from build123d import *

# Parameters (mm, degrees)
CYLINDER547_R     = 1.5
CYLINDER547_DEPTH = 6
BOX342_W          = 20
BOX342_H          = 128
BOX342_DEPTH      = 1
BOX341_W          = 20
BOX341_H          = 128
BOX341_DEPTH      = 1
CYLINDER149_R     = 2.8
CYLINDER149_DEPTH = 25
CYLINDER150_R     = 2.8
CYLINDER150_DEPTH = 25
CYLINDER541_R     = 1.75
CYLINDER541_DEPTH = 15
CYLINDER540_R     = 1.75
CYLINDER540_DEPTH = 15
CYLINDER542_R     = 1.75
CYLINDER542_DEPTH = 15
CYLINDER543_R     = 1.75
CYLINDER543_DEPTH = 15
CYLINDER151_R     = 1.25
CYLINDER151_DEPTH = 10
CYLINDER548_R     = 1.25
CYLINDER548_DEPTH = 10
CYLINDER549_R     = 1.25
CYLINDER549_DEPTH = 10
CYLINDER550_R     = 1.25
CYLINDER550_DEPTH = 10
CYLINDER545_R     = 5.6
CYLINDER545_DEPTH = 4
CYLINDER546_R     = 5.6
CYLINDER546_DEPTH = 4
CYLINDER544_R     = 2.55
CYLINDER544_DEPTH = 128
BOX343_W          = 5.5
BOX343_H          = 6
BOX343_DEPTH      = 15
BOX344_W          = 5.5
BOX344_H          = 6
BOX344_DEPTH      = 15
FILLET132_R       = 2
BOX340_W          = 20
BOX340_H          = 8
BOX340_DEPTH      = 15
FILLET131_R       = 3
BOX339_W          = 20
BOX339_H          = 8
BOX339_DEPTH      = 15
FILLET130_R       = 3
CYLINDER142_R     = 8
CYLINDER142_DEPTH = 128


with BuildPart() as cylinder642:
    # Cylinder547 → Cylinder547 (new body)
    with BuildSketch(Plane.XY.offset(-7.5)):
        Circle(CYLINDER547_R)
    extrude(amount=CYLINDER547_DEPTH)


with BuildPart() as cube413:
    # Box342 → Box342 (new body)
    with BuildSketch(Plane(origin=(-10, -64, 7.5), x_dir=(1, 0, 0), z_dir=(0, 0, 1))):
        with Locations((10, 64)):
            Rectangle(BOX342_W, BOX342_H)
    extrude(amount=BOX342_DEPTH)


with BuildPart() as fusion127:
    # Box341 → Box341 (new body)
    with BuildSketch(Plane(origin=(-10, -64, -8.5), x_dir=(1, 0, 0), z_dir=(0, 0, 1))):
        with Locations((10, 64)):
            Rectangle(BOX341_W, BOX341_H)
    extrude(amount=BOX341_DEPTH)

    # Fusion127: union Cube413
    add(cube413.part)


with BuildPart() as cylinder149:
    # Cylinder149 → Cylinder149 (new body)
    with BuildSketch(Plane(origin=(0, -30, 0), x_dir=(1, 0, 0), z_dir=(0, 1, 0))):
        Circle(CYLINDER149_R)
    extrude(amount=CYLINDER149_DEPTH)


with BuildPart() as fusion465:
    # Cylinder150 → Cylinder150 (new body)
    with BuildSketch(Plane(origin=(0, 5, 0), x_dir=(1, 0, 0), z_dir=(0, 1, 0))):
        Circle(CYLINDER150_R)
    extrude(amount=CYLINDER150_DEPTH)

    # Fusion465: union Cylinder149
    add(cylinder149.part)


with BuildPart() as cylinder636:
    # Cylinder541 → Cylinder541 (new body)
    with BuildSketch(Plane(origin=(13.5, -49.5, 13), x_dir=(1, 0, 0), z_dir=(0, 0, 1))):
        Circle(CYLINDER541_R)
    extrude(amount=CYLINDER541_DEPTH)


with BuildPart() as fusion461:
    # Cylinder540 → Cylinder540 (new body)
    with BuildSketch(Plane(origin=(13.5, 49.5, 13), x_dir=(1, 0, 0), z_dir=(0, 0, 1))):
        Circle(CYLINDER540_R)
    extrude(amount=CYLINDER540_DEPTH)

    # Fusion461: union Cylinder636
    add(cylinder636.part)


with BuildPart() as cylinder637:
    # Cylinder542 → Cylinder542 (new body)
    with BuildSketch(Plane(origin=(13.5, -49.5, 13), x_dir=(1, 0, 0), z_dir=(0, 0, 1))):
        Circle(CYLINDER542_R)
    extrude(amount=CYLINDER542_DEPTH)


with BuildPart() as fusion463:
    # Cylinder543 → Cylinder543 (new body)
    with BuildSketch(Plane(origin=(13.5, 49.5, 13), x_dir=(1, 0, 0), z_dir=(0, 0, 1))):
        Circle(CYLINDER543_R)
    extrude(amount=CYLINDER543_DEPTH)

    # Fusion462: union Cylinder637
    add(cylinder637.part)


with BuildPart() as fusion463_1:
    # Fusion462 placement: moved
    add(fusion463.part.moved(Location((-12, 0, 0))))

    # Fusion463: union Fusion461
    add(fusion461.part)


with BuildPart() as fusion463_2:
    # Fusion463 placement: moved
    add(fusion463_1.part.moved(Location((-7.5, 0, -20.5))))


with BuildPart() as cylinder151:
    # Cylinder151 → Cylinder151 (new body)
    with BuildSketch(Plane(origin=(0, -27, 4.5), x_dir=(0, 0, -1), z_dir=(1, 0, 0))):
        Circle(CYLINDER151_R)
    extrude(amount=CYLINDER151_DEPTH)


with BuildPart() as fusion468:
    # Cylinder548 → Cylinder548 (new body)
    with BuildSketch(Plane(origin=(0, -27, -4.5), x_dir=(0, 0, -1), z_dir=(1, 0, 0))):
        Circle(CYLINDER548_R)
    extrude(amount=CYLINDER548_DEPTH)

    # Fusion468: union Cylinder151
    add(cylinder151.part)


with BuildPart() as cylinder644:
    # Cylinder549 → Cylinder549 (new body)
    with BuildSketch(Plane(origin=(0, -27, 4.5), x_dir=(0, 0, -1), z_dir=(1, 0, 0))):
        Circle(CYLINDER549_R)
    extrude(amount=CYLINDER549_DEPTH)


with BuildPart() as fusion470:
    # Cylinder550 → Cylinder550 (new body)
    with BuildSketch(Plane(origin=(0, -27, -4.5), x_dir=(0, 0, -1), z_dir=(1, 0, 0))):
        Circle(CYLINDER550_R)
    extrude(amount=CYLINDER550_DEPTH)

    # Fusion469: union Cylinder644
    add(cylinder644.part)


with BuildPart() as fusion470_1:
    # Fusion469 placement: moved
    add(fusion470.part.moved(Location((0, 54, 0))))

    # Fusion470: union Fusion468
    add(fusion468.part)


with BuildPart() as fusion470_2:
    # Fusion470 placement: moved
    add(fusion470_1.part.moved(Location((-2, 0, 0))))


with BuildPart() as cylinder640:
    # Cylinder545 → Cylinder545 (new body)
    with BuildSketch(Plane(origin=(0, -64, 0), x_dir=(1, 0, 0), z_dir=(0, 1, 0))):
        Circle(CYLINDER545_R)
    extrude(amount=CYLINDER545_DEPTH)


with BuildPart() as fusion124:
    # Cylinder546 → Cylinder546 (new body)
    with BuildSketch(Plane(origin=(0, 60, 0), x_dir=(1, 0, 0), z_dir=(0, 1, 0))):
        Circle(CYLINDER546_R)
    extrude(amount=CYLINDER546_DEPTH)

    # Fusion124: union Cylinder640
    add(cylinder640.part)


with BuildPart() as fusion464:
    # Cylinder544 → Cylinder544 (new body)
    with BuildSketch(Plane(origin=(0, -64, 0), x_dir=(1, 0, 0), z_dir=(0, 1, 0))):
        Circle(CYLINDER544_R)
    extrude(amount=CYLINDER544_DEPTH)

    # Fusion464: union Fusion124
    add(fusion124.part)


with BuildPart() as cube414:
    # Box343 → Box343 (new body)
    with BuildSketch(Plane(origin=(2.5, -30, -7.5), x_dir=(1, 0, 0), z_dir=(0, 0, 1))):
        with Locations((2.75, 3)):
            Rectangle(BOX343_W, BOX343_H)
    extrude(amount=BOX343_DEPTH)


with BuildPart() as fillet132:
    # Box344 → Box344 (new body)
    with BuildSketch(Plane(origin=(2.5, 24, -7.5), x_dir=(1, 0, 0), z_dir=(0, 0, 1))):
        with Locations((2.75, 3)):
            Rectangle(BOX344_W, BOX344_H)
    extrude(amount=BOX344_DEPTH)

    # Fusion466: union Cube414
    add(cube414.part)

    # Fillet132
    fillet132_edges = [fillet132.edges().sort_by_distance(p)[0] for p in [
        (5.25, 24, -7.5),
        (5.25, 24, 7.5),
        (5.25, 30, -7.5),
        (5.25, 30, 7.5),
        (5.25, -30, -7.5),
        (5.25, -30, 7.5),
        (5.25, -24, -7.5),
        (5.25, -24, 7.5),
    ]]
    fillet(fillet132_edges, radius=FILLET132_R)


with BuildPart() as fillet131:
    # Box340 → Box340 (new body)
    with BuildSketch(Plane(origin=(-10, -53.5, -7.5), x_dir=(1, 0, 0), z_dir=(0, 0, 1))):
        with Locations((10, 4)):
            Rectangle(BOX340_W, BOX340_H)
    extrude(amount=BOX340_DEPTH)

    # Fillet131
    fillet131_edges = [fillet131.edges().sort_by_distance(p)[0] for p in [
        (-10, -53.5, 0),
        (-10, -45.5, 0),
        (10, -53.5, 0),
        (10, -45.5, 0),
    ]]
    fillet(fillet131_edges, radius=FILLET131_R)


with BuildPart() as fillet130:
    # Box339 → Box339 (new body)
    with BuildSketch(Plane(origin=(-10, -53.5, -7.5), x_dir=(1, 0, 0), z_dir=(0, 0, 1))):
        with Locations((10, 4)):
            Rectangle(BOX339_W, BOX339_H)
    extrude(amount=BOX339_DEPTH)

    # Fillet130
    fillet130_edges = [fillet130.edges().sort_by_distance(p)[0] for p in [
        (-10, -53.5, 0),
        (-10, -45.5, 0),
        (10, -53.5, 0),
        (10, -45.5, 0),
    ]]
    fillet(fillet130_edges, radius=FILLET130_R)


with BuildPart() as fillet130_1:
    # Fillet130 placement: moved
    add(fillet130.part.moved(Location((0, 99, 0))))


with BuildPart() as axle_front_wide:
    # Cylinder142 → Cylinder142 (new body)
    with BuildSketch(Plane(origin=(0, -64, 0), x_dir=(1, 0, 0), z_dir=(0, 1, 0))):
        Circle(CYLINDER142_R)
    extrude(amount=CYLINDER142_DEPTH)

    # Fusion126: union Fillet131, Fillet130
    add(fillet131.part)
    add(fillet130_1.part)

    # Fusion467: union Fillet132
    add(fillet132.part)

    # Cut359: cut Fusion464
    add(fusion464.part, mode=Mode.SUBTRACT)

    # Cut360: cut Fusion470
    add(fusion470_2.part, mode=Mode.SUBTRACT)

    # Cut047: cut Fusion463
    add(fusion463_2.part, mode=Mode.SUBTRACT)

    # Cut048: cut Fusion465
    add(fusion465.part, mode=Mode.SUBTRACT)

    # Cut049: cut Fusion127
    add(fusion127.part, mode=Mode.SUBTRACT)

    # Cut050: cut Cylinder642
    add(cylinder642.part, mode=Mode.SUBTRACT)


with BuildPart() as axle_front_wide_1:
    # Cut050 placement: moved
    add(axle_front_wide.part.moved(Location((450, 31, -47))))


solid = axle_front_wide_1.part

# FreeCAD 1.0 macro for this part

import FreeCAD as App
import Part
import Sketcher
Q = App.Units.Quantity


def edges_at(feature, points):
    """Names of the edges that pass closest to the given points."""
    edges = feature.Shape.Edges
    near = lambda p: min(range(len(edges)), key=lambda i: edges[i].distToShape(Part.Vertex(*p))[0])
    return sorted({f"Edge{near(p) + 1}" for p in points})


def add_polygon(sketch, points):
    """Adds a closed chain of lines whose ends are joined by coincident constraints."""
    first, n = sketch.GeometryCount, len(points)
    for a, b in zip(points, points[1:] + points[:1]):
        sketch.addGeometry(Part.LineSegment(App.Vector(*a, 0), App.Vector(*b, 0)), False)
    for i in range(n):
        sketch.addConstraint(Sketcher.Constraint("Coincident", first + i, 2, first + (i + 1) % n, 1))

doc = App.newDocument("Part")
body = doc.addObject("PartDesign::Body", "Body")

sketch1 = body.newObject("Sketcher::SketchObject", "Sketch")
sketch1.AttachmentSupport = (doc.getObject("XY_Plane"), [""])
sketch1.MapMode = "FlatFace"
sketch1.AttachmentOffset = App.Placement(App.Vector(0, 0, -7.5), App.Rotation())
sketch1.addGeometry(Part.Circle(App.Vector(0, 0, 0), App.Vector(0, 0, 1), 1.5), False)
sketch1.addConstraint([
    Sketcher.Constraint("Coincident", 0, 3, -1, 1),
    Sketcher.Constraint("Diameter", 0, Q("3 mm")),
])
pad1 = body.newObject("PartDesign::Pad", "Pad")
pad1.Profile = sketch1
pad1.Length = 6
body2 = doc.addObject("PartDesign::Body", "Body001")

sketch2 = body2.newObject("Sketcher::SketchObject", "Sketch001")
sketch2.AttachmentSupport = (doc.getObject("XY_Plane001"), [""])
sketch2.MapMode = "FlatFace"
sketch2.AttachmentOffset = App.Placement(App.Vector(0, 0, 7.5), App.Rotation())
add_polygon(sketch2, [(-10, 64), (-10, -64), (10, -64), (10, 64)])
sketch2.addConstraint([
    Sketcher.Constraint("Vertical", 0),
    Sketcher.Constraint("Horizontal", 1),
    Sketcher.Constraint("Vertical", 2),
    Sketcher.Constraint("Horizontal", 3),
    Sketcher.Constraint("Symmetric", 0, 2, 2, 2, -1, 1),
    Sketcher.Constraint("DistanceX", 1, 1, 1, 2, Q("20 mm")),
    Sketcher.Constraint("DistanceY", 0, 2, 0, 1, Q("128 mm")),
])
pad2 = body2.newObject("PartDesign::Pad", "Pad001")
pad2.Profile = sketch2
pad2.Length = 1
body3 = doc.addObject("PartDesign::Body", "Body002")
body3.AllowCompound = True

sketch3 = body3.newObject("Sketcher::SketchObject", "Sketch002")
sketch3.AttachmentSupport = (doc.getObject("XY_Plane002"), [""])
sketch3.MapMode = "FlatFace"
sketch3.AttachmentOffset = App.Placement(App.Vector(0, 0, -8.5), App.Rotation())
add_polygon(sketch3, [(-10, 64), (-10, -64), (10, -64), (10, 64)])
sketch3.addConstraint([
    Sketcher.Constraint("Vertical", 0),
    Sketcher.Constraint("Horizontal", 1),
    Sketcher.Constraint("Vertical", 2),
    Sketcher.Constraint("Horizontal", 3),
    Sketcher.Constraint("Symmetric", 0, 2, 2, 2, -1, 1),
    Sketcher.Constraint("DistanceX", 1, 1, 1, 2, Q("20 mm")),
    Sketcher.Constraint("DistanceY", 0, 2, 0, 1, Q("128 mm")),
])
pad3 = body3.newObject("PartDesign::Pad", "Pad002")
pad3.Profile = sketch3
pad3.Length = 1
doc.recompute()

boolean = body3.newObject("PartDesign::Boolean", "Boolean")
boolean.Type = "Fuse"
boolean.addObjects([body2])
body4 = doc.addObject("PartDesign::Body", "Body003")

sketch4 = body4.newObject("Sketcher::SketchObject", "Sketch003")
sketch4.AttachmentSupport = (doc.getObject("XZ_Plane003"), [""])
sketch4.MapMode = "FlatFace"
sketch4.AttachmentOffset = App.Placement(App.Vector(0, 0, 30), App.Rotation())
sketch4.addGeometry(Part.Circle(App.Vector(0, 0, 0), App.Vector(0, 0, 1), 2.8), False)
sketch4.addConstraint([
    Sketcher.Constraint("Coincident", 0, 3, -1, 1),
    Sketcher.Constraint("Diameter", 0, Q("5.6 mm")),
])
pad4 = body4.newObject("PartDesign::Pad", "Pad003")
pad4.Profile = sketch4
pad4.Length = 25
pad4.Reversed = True
body5 = doc.addObject("PartDesign::Body", "Body004")
body5.AllowCompound = True

sketch5 = body5.newObject("Sketcher::SketchObject", "Sketch004")
sketch5.AttachmentSupport = (doc.getObject("XZ_Plane004"), [""])
sketch5.MapMode = "FlatFace"
sketch5.AttachmentOffset = App.Placement(App.Vector(0, 0, -5), App.Rotation())
sketch5.addGeometry(Part.Circle(App.Vector(0, 0, 0), App.Vector(0, 0, 1), 2.8), False)
sketch5.addConstraint([
    Sketcher.Constraint("Coincident", 0, 3, -1, 1),
    Sketcher.Constraint("Diameter", 0, Q("5.6 mm")),
])
pad5 = body5.newObject("PartDesign::Pad", "Pad004")
pad5.Profile = sketch5
pad5.Length = 25
pad5.Reversed = True
doc.recompute()

boolean2 = body5.newObject("PartDesign::Boolean", "Boolean001")
boolean2.Type = "Fuse"
boolean2.addObjects([body4])
body6 = doc.addObject("PartDesign::Body", "Body005")

sketch6 = body6.newObject("Sketcher::SketchObject", "Sketch005")
sketch6.AttachmentSupport = (doc.getObject("XY_Plane005"), [""])
sketch6.MapMode = "FlatFace"
sketch6.AttachmentOffset = App.Placement(App.Vector(0, 0, 13), App.Rotation())
sketch6.addGeometry(Part.Circle(App.Vector(13.5, -49.5, 0), App.Vector(0, 0, 1), 1.8), False)
sketch6.addConstraint([
    Sketcher.Constraint("Diameter", 0, Q("3.5 mm")),
    Sketcher.Constraint("DistanceX", -1, 1, 0, 3, Q("13.5 mm")),
    Sketcher.Constraint("DistanceY", 0, 3, -1, 1, Q("49.5 mm")),
])
pad6 = body6.newObject("PartDesign::Pad", "Pad005")
pad6.Profile = sketch6
pad6.Length = 15
body7 = doc.addObject("PartDesign::Body", "Body006")
body7.AllowCompound = True

sketch7 = body7.newObject("Sketcher::SketchObject", "Sketch006")
sketch7.AttachmentSupport = (doc.getObject("XY_Plane006"), [""])
sketch7.MapMode = "FlatFace"
sketch7.AttachmentOffset = App.Placement(App.Vector(0, 0, 13), App.Rotation())
sketch7.addGeometry(Part.Circle(App.Vector(13.5, 49.5, 0), App.Vector(0, 0, 1), 1.8), False)
sketch7.addConstraint([
    Sketcher.Constraint("Diameter", 0, Q("3.5 mm")),
    Sketcher.Constraint("DistanceX", -1, 1, 0, 3, Q("13.5 mm")),
    Sketcher.Constraint("DistanceY", -1, 1, 0, 3, Q("49.5 mm")),
])
pad7 = body7.newObject("PartDesign::Pad", "Pad006")
pad7.Profile = sketch7
pad7.Length = 15
doc.recompute()

boolean3 = body7.newObject("PartDesign::Boolean", "Boolean002")
boolean3.Type = "Fuse"
boolean3.addObjects([body6])
body8 = doc.addObject("PartDesign::Body", "Body007")

sketch8 = body8.newObject("Sketcher::SketchObject", "Sketch007")
sketch8.AttachmentSupport = (doc.getObject("XY_Plane007"), [""])
sketch8.MapMode = "FlatFace"
sketch8.AttachmentOffset = App.Placement(App.Vector(0, 0, 13), App.Rotation())
sketch8.addGeometry(Part.Circle(App.Vector(13.5, -49.5, 0), App.Vector(0, 0, 1), 1.8), False)
sketch8.addConstraint([
    Sketcher.Constraint("Diameter", 0, Q("3.5 mm")),
    Sketcher.Constraint("DistanceX", -1, 1, 0, 3, Q("13.5 mm")),
    Sketcher.Constraint("DistanceY", 0, 3, -1, 1, Q("49.5 mm")),
])
pad8 = body8.newObject("PartDesign::Pad", "Pad007")
pad8.Profile = sketch8
pad8.Length = 15
body9 = doc.addObject("PartDesign::Body", "Body008")
body9.AllowCompound = True

sketch9 = body9.newObject("Sketcher::SketchObject", "Sketch008")
sketch9.AttachmentSupport = (doc.getObject("XY_Plane008"), [""])
sketch9.MapMode = "FlatFace"
sketch9.AttachmentOffset = App.Placement(App.Vector(0, 0, 13), App.Rotation())
sketch9.addGeometry(Part.Circle(App.Vector(13.5, 49.5, 0), App.Vector(0, 0, 1), 1.8), False)
sketch9.addConstraint([
    Sketcher.Constraint("Diameter", 0, Q("3.5 mm")),
    Sketcher.Constraint("DistanceX", -1, 1, 0, 3, Q("13.5 mm")),
    Sketcher.Constraint("DistanceY", -1, 1, 0, 3, Q("49.5 mm")),
])
pad9 = body9.newObject("PartDesign::Pad", "Pad008")
pad9.Profile = sketch9
pad9.Length = 15
doc.recompute()

boolean4 = body9.newObject("PartDesign::Boolean", "Boolean003")
boolean4.Type = "Fuse"
boolean4.addObjects([body8])
body10 = doc.addObject("PartDesign::Body", "Body009")
body10.AllowCompound = True
doc.recompute()

body9.Placement = App.Placement(App.Vector(-12, 0, 0), App.Rotation(App.Vector(0, 0, 1), 0))
boolean5 = body10.newObject("PartDesign::Boolean", "Boolean004")
boolean5.Type = "Fuse"
boolean5.addObjects([body9])
doc.recompute()

boolean6 = body10.newObject("PartDesign::Boolean", "Boolean005")
boolean6.Type = "Fuse"
boolean6.addObjects([body7])
body11 = doc.addObject("PartDesign::Body", "Body010")
body11.AllowCompound = True
doc.recompute()

body10.Placement = App.Placement(App.Vector(-7.5, 0, -20.5), App.Rotation(App.Vector(0, 0, 1), 0))
boolean7 = body11.newObject("PartDesign::Boolean", "Boolean006")
boolean7.Type = "Fuse"
boolean7.addObjects([body10])
body12 = doc.addObject("PartDesign::Body", "Body011")

sketch10 = body12.newObject("Sketcher::SketchObject", "Sketch009")
sketch10.AttachmentSupport = (doc.getObject("YZ_Plane011"), [""])
sketch10.MapMode = "FlatFace"
sketch10.addGeometry(Part.Circle(App.Vector(-27, 4.5, 0), App.Vector(0, 0, 1), 1.2), False)
sketch10.addConstraint([
    Sketcher.Constraint("Diameter", 0, Q("2.5 mm")),
    Sketcher.Constraint("DistanceX", 0, 3, -1, 1, Q("27 mm")),
    Sketcher.Constraint("DistanceY", -1, 1, 0, 3, Q("4.5 mm")),
])
pad10 = body12.newObject("PartDesign::Pad", "Pad009")
pad10.Profile = sketch10
pad10.Length = 10
body13 = doc.addObject("PartDesign::Body", "Body012")
body13.AllowCompound = True

sketch11 = body13.newObject("Sketcher::SketchObject", "Sketch010")
sketch11.AttachmentSupport = (doc.getObject("YZ_Plane012"), [""])
sketch11.MapMode = "FlatFace"
sketch11.addGeometry(Part.Circle(App.Vector(-27, -4.5, 0), App.Vector(0, 0, 1), 1.2), False)
sketch11.addConstraint([
    Sketcher.Constraint("Diameter", 0, Q("2.5 mm")),
    Sketcher.Constraint("DistanceX", 0, 3, -1, 1, Q("27 mm")),
    Sketcher.Constraint("DistanceY", 0, 3, -1, 1, Q("4.5 mm")),
])
pad11 = body13.newObject("PartDesign::Pad", "Pad010")
pad11.Profile = sketch11
pad11.Length = 10
doc.recompute()

boolean8 = body13.newObject("PartDesign::Boolean", "Boolean007")
boolean8.Type = "Fuse"
boolean8.addObjects([body12])
body14 = doc.addObject("PartDesign::Body", "Body013")

sketch12 = body14.newObject("Sketcher::SketchObject", "Sketch011")
sketch12.AttachmentSupport = (doc.getObject("YZ_Plane013"), [""])
sketch12.MapMode = "FlatFace"
sketch12.addGeometry(Part.Circle(App.Vector(-27, 4.5, 0), App.Vector(0, 0, 1), 1.2), False)
sketch12.addConstraint([
    Sketcher.Constraint("Diameter", 0, Q("2.5 mm")),
    Sketcher.Constraint("DistanceX", 0, 3, -1, 1, Q("27 mm")),
    Sketcher.Constraint("DistanceY", -1, 1, 0, 3, Q("4.5 mm")),
])
pad12 = body14.newObject("PartDesign::Pad", "Pad011")
pad12.Profile = sketch12
pad12.Length = 10
body15 = doc.addObject("PartDesign::Body", "Body014")
body15.AllowCompound = True

sketch13 = body15.newObject("Sketcher::SketchObject", "Sketch012")
sketch13.AttachmentSupport = (doc.getObject("YZ_Plane014"), [""])
sketch13.MapMode = "FlatFace"
sketch13.addGeometry(Part.Circle(App.Vector(-27, -4.5, 0), App.Vector(0, 0, 1), 1.2), False)
sketch13.addConstraint([
    Sketcher.Constraint("Diameter", 0, Q("2.5 mm")),
    Sketcher.Constraint("DistanceX", 0, 3, -1, 1, Q("27 mm")),
    Sketcher.Constraint("DistanceY", 0, 3, -1, 1, Q("4.5 mm")),
])
pad13 = body15.newObject("PartDesign::Pad", "Pad012")
pad13.Profile = sketch13
pad13.Length = 10
doc.recompute()

boolean9 = body15.newObject("PartDesign::Boolean", "Boolean008")
boolean9.Type = "Fuse"
boolean9.addObjects([body14])
body16 = doc.addObject("PartDesign::Body", "Body015")
body16.AllowCompound = True
doc.recompute()

body15.Placement = App.Placement(App.Vector(0, 54, 0), App.Rotation(App.Vector(0, 0, 1), 0))
boolean10 = body16.newObject("PartDesign::Boolean", "Boolean009")
boolean10.Type = "Fuse"
boolean10.addObjects([body15])
doc.recompute()

boolean11 = body16.newObject("PartDesign::Boolean", "Boolean010")
boolean11.Type = "Fuse"
boolean11.addObjects([body13])
body17 = doc.addObject("PartDesign::Body", "Body016")
body17.AllowCompound = True
doc.recompute()

body16.Placement = App.Placement(App.Vector(-2, 0, 0), App.Rotation(App.Vector(0, 0, 1), 0))
boolean12 = body17.newObject("PartDesign::Boolean", "Boolean011")
boolean12.Type = "Fuse"
boolean12.addObjects([body16])
body18 = doc.addObject("PartDesign::Body", "Body017")

sketch14 = body18.newObject("Sketcher::SketchObject", "Sketch013")
sketch14.AttachmentSupport = (doc.getObject("XZ_Plane017"), [""])
sketch14.MapMode = "FlatFace"
sketch14.AttachmentOffset = App.Placement(App.Vector(0, 0, 64), App.Rotation())
sketch14.addGeometry(Part.Circle(App.Vector(0, 0, 0), App.Vector(0, 0, 1), 6), False)
sketch14.addConstraint([
    Sketcher.Constraint("Coincident", 0, 3, -1, 1),
    Sketcher.Constraint("Diameter", 0, Q("11.2 mm")),
])
pad14 = body18.newObject("PartDesign::Pad", "Pad013")
pad14.Profile = sketch14
pad14.Length = 4
pad14.Reversed = True
body19 = doc.addObject("PartDesign::Body", "Body018")
body19.AllowCompound = True

sketch15 = body19.newObject("Sketcher::SketchObject", "Sketch014")
sketch15.AttachmentSupport = (doc.getObject("XZ_Plane018"), [""])
sketch15.MapMode = "FlatFace"
sketch15.AttachmentOffset = App.Placement(App.Vector(0, 0, -60), App.Rotation())
sketch15.addGeometry(Part.Circle(App.Vector(0, 0, 0), App.Vector(0, 0, 1), 6), False)
sketch15.addConstraint([
    Sketcher.Constraint("Coincident", 0, 3, -1, 1),
    Sketcher.Constraint("Diameter", 0, Q("11.2 mm")),
])
pad15 = body19.newObject("PartDesign::Pad", "Pad014")
pad15.Profile = sketch15
pad15.Length = 4
pad15.Reversed = True
doc.recompute()

boolean13 = body19.newObject("PartDesign::Boolean", "Boolean012")
boolean13.Type = "Fuse"
boolean13.addObjects([body18])
body20 = doc.addObject("PartDesign::Body", "Body019")

sketch16 = body20.newObject("Sketcher::SketchObject", "Sketch015")
sketch16.AttachmentSupport = (doc.getObject("XZ_Plane019"), [""])
sketch16.MapMode = "FlatFace"
sketch16.AttachmentOffset = App.Placement(App.Vector(0, 0, 64), App.Rotation())
sketch16.addGeometry(Part.Circle(App.Vector(0, 0, 0), App.Vector(0, 0, 1), 2.5), False)
sketch16.addConstraint([
    Sketcher.Constraint("Coincident", 0, 3, -1, 1),
    Sketcher.Constraint("Diameter", 0, Q("5.1 mm")),
])
pad16 = body20.newObject("PartDesign::Pad", "Pad015")
pad16.Profile = sketch16
pad16.Length = 128
pad16.Reversed = True
doc.recompute()

boolean14 = body20.newObject("PartDesign::Boolean", "Boolean013")
boolean14.Type = "Fuse"
boolean14.addObjects([body19])
body21 = doc.addObject("PartDesign::Body", "Body020")

sketch17 = body21.newObject("Sketcher::SketchObject", "Sketch016")
sketch17.AttachmentSupport = (doc.getObject("XY_Plane020"), [""])
sketch17.MapMode = "FlatFace"
sketch17.AttachmentOffset = App.Placement(App.Vector(0, 0, -7.5), App.Rotation())
add_polygon(sketch17, [(2, -24), (2, -30), (8, -30), (8, -24)])
sketch17.addConstraint([
    Sketcher.Constraint("Vertical", 0),
    Sketcher.Constraint("Horizontal", 1),
    Sketcher.Constraint("Vertical", 2),
    Sketcher.Constraint("Horizontal", 3),
    Sketcher.Constraint("DistanceY", 0, 2, 0, 1, Q("6 mm")),
    Sketcher.Constraint("DistanceX", 1, 1, 1, 2, Q("5.5 mm")),
    Sketcher.Constraint("DistanceY", 0, 2, -1, 1, Q("30 mm")),
    Sketcher.Constraint("DistanceX", -1, 1, 1, 2, Q("8 mm")),
])
pad17 = body21.newObject("PartDesign::Pad", "Pad016")
pad17.Profile = sketch17
pad17.Length = 15
body22 = doc.addObject("PartDesign::Body", "Body021")
body22.AllowCompound = True

sketch18 = body22.newObject("Sketcher::SketchObject", "Sketch017")
sketch18.AttachmentSupport = (doc.getObject("XY_Plane021"), [""])
sketch18.MapMode = "FlatFace"
sketch18.AttachmentOffset = App.Placement(App.Vector(0, 0, -7.5), App.Rotation())
add_polygon(sketch18, [(2, 30), (2, 24), (8, 24), (8, 30)])
sketch18.addConstraint([
    Sketcher.Constraint("Vertical", 0),
    Sketcher.Constraint("Horizontal", 1),
    Sketcher.Constraint("Vertical", 2),
    Sketcher.Constraint("Horizontal", 3),
    Sketcher.Constraint("DistanceY", 0, 2, 0, 1, Q("6 mm")),
    Sketcher.Constraint("DistanceX", 1, 1, 1, 2, Q("5.5 mm")),
    Sketcher.Constraint("DistanceY", -1, 1, 0, 2, Q("24 mm")),
    Sketcher.Constraint("DistanceX", -1, 1, 1, 2, Q("8 mm")),
])
pad18 = body22.newObject("PartDesign::Pad", "Pad017")
pad18.Profile = sketch18
pad18.Length = 15
doc.recompute()

boolean15 = body22.newObject("PartDesign::Boolean", "Boolean014")
boolean15.Type = "Fuse"
boolean15.addObjects([body21])
doc.recompute()

fillet = body22.newObject("PartDesign::Fillet", "Fillet")
fillet.Base = (boolean15, edges_at(boolean15, [
    (5.25, 24, -7.5),
    (5.25, 24, 7.5),
    (5.25, 30, -7.5),
    (5.25, 30, 7.5),
    (5.25, -30, -7.5),
    (5.25, -30, 7.5),
    (5.25, -24, -7.5),
    (5.25, -24, 7.5),
]))
fillet.Radius = 2
body23 = doc.addObject("PartDesign::Body", "Body022")

sketch19 = body23.newObject("Sketcher::SketchObject", "Sketch018")
sketch19.AttachmentSupport = (doc.getObject("XY_Plane022"), [""])
sketch19.MapMode = "FlatFace"
sketch19.AttachmentOffset = App.Placement(App.Vector(0, 0, -7.5), App.Rotation())
add_polygon(sketch19, [(-10, -46), (-10, -54), (10, -54), (10, -46)])
sketch19.addConstraint([
    Sketcher.Constraint("Vertical", 0),
    Sketcher.Constraint("Horizontal", 1),
    Sketcher.Constraint("Vertical", 2),
    Sketcher.Constraint("Horizontal", 3),
    Sketcher.Constraint("DistanceX", 1, 1, 1, 2, Q("20 mm")),
    Sketcher.Constraint("DistanceY", 0, 2, 0, 1, Q("8 mm")),
    Sketcher.Constraint("DistanceX", 0, 2, -1, 1, Q("10 mm")),
    Sketcher.Constraint("DistanceY", 0, 2, -1, 1, Q("53.5 mm")),
])
pad19 = body23.newObject("PartDesign::Pad", "Pad018")
pad19.Profile = sketch19
pad19.Length = 15
doc.recompute()

fillet2 = body23.newObject("PartDesign::Fillet", "Fillet001")
fillet2.Base = (pad19, edges_at(pad19, [
    (-10, -53.5, 0),
    (-10, -45.5, 0),
    (10, -53.5, 0),
    (10, -45.5, 0),
]))
fillet2.Radius = 3
body24 = doc.addObject("PartDesign::Body", "Body023")

sketch20 = body24.newObject("Sketcher::SketchObject", "Sketch019")
sketch20.AttachmentSupport = (doc.getObject("XY_Plane023"), [""])
sketch20.MapMode = "FlatFace"
sketch20.AttachmentOffset = App.Placement(App.Vector(0, 0, -7.5), App.Rotation())
add_polygon(sketch20, [(-10, -46), (-10, -54), (10, -54), (10, -46)])
sketch20.addConstraint([
    Sketcher.Constraint("Vertical", 0),
    Sketcher.Constraint("Horizontal", 1),
    Sketcher.Constraint("Vertical", 2),
    Sketcher.Constraint("Horizontal", 3),
    Sketcher.Constraint("DistanceX", 1, 1, 1, 2, Q("20 mm")),
    Sketcher.Constraint("DistanceY", 0, 2, 0, 1, Q("8 mm")),
    Sketcher.Constraint("DistanceX", 0, 2, -1, 1, Q("10 mm")),
    Sketcher.Constraint("DistanceY", 0, 2, -1, 1, Q("53.5 mm")),
])
pad20 = body24.newObject("PartDesign::Pad", "Pad019")
pad20.Profile = sketch20
pad20.Length = 15
doc.recompute()

fillet3 = body24.newObject("PartDesign::Fillet", "Fillet002")
fillet3.Base = (pad20, edges_at(pad20, [
    (-10, -53.5, 0),
    (-10, -45.5, 0),
    (10, -53.5, 0),
    (10, -45.5, 0),
]))
fillet3.Radius = 3
body25 = doc.addObject("PartDesign::Body", "Body024")
doc.recompute()

body24.Placement = App.Placement(App.Vector(0, 99, 0), App.Rotation(App.Vector(0, 0, 1), 0))
boolean16 = body25.newObject("PartDesign::Boolean", "Boolean015")
boolean16.Type = "Fuse"
boolean16.addObjects([body24])
body26 = doc.addObject("PartDesign::Body", "Body025")

sketch21 = body26.newObject("Sketcher::SketchObject", "Sketch020")
sketch21.AttachmentSupport = (doc.getObject("XZ_Plane025"), [""])
sketch21.MapMode = "FlatFace"
sketch21.AttachmentOffset = App.Placement(App.Vector(0, 0, 64), App.Rotation())
sketch21.addGeometry(Part.Circle(App.Vector(0, 0, 0), App.Vector(0, 0, 1), 8), False)
sketch21.addConstraint([
    Sketcher.Constraint("Coincident", 0, 3, -1, 1),
    Sketcher.Constraint("Diameter", 0, Q("16 mm")),
])
pad21 = body26.newObject("PartDesign::Pad", "Pad020")
pad21.Profile = sketch21
pad21.Length = 128
pad21.Reversed = True
doc.recompute()

boolean17 = body26.newObject("PartDesign::Boolean", "Boolean016")
boolean17.Type = "Fuse"
boolean17.addObjects([body23])
doc.recompute()

boolean18 = body26.newObject("PartDesign::Boolean", "Boolean017")
boolean18.Type = "Fuse"
boolean18.addObjects([body25])
doc.recompute()

boolean19 = body26.newObject("PartDesign::Boolean", "Boolean018")
boolean19.Type = "Fuse"
boolean19.addObjects([body22])
doc.recompute()

boolean20 = body26.newObject("PartDesign::Boolean", "Boolean019")
boolean20.Type = "Cut"
boolean20.addObjects([body20])
doc.recompute()

boolean21 = body26.newObject("PartDesign::Boolean", "Boolean020")
boolean21.Type = "Cut"
boolean21.addObjects([body17])
doc.recompute()

boolean22 = body26.newObject("PartDesign::Boolean", "Boolean021")
boolean22.Type = "Cut"
boolean22.addObjects([body11])
doc.recompute()

boolean23 = body26.newObject("PartDesign::Boolean", "Boolean022")
boolean23.Type = "Cut"
boolean23.addObjects([body5])
doc.recompute()

boolean24 = body26.newObject("PartDesign::Boolean", "Boolean023")
boolean24.Type = "Cut"
boolean24.addObjects([body3])
doc.recompute()

boolean25 = body26.newObject("PartDesign::Boolean", "Boolean024")
boolean25.Type = "Cut"
boolean25.addObjects([body])
body27 = doc.addObject("PartDesign::Body", "Body026")
doc.recompute()

body26.Placement = App.Placement(App.Vector(450, 31, -47), App.Rotation(App.Vector(0, 0, 1), 0))
boolean26 = body27.newObject("PartDesign::Boolean", "Boolean025")
boolean26.Type = "Fuse"
boolean26.addObjects([body26])

doc.recompute()
